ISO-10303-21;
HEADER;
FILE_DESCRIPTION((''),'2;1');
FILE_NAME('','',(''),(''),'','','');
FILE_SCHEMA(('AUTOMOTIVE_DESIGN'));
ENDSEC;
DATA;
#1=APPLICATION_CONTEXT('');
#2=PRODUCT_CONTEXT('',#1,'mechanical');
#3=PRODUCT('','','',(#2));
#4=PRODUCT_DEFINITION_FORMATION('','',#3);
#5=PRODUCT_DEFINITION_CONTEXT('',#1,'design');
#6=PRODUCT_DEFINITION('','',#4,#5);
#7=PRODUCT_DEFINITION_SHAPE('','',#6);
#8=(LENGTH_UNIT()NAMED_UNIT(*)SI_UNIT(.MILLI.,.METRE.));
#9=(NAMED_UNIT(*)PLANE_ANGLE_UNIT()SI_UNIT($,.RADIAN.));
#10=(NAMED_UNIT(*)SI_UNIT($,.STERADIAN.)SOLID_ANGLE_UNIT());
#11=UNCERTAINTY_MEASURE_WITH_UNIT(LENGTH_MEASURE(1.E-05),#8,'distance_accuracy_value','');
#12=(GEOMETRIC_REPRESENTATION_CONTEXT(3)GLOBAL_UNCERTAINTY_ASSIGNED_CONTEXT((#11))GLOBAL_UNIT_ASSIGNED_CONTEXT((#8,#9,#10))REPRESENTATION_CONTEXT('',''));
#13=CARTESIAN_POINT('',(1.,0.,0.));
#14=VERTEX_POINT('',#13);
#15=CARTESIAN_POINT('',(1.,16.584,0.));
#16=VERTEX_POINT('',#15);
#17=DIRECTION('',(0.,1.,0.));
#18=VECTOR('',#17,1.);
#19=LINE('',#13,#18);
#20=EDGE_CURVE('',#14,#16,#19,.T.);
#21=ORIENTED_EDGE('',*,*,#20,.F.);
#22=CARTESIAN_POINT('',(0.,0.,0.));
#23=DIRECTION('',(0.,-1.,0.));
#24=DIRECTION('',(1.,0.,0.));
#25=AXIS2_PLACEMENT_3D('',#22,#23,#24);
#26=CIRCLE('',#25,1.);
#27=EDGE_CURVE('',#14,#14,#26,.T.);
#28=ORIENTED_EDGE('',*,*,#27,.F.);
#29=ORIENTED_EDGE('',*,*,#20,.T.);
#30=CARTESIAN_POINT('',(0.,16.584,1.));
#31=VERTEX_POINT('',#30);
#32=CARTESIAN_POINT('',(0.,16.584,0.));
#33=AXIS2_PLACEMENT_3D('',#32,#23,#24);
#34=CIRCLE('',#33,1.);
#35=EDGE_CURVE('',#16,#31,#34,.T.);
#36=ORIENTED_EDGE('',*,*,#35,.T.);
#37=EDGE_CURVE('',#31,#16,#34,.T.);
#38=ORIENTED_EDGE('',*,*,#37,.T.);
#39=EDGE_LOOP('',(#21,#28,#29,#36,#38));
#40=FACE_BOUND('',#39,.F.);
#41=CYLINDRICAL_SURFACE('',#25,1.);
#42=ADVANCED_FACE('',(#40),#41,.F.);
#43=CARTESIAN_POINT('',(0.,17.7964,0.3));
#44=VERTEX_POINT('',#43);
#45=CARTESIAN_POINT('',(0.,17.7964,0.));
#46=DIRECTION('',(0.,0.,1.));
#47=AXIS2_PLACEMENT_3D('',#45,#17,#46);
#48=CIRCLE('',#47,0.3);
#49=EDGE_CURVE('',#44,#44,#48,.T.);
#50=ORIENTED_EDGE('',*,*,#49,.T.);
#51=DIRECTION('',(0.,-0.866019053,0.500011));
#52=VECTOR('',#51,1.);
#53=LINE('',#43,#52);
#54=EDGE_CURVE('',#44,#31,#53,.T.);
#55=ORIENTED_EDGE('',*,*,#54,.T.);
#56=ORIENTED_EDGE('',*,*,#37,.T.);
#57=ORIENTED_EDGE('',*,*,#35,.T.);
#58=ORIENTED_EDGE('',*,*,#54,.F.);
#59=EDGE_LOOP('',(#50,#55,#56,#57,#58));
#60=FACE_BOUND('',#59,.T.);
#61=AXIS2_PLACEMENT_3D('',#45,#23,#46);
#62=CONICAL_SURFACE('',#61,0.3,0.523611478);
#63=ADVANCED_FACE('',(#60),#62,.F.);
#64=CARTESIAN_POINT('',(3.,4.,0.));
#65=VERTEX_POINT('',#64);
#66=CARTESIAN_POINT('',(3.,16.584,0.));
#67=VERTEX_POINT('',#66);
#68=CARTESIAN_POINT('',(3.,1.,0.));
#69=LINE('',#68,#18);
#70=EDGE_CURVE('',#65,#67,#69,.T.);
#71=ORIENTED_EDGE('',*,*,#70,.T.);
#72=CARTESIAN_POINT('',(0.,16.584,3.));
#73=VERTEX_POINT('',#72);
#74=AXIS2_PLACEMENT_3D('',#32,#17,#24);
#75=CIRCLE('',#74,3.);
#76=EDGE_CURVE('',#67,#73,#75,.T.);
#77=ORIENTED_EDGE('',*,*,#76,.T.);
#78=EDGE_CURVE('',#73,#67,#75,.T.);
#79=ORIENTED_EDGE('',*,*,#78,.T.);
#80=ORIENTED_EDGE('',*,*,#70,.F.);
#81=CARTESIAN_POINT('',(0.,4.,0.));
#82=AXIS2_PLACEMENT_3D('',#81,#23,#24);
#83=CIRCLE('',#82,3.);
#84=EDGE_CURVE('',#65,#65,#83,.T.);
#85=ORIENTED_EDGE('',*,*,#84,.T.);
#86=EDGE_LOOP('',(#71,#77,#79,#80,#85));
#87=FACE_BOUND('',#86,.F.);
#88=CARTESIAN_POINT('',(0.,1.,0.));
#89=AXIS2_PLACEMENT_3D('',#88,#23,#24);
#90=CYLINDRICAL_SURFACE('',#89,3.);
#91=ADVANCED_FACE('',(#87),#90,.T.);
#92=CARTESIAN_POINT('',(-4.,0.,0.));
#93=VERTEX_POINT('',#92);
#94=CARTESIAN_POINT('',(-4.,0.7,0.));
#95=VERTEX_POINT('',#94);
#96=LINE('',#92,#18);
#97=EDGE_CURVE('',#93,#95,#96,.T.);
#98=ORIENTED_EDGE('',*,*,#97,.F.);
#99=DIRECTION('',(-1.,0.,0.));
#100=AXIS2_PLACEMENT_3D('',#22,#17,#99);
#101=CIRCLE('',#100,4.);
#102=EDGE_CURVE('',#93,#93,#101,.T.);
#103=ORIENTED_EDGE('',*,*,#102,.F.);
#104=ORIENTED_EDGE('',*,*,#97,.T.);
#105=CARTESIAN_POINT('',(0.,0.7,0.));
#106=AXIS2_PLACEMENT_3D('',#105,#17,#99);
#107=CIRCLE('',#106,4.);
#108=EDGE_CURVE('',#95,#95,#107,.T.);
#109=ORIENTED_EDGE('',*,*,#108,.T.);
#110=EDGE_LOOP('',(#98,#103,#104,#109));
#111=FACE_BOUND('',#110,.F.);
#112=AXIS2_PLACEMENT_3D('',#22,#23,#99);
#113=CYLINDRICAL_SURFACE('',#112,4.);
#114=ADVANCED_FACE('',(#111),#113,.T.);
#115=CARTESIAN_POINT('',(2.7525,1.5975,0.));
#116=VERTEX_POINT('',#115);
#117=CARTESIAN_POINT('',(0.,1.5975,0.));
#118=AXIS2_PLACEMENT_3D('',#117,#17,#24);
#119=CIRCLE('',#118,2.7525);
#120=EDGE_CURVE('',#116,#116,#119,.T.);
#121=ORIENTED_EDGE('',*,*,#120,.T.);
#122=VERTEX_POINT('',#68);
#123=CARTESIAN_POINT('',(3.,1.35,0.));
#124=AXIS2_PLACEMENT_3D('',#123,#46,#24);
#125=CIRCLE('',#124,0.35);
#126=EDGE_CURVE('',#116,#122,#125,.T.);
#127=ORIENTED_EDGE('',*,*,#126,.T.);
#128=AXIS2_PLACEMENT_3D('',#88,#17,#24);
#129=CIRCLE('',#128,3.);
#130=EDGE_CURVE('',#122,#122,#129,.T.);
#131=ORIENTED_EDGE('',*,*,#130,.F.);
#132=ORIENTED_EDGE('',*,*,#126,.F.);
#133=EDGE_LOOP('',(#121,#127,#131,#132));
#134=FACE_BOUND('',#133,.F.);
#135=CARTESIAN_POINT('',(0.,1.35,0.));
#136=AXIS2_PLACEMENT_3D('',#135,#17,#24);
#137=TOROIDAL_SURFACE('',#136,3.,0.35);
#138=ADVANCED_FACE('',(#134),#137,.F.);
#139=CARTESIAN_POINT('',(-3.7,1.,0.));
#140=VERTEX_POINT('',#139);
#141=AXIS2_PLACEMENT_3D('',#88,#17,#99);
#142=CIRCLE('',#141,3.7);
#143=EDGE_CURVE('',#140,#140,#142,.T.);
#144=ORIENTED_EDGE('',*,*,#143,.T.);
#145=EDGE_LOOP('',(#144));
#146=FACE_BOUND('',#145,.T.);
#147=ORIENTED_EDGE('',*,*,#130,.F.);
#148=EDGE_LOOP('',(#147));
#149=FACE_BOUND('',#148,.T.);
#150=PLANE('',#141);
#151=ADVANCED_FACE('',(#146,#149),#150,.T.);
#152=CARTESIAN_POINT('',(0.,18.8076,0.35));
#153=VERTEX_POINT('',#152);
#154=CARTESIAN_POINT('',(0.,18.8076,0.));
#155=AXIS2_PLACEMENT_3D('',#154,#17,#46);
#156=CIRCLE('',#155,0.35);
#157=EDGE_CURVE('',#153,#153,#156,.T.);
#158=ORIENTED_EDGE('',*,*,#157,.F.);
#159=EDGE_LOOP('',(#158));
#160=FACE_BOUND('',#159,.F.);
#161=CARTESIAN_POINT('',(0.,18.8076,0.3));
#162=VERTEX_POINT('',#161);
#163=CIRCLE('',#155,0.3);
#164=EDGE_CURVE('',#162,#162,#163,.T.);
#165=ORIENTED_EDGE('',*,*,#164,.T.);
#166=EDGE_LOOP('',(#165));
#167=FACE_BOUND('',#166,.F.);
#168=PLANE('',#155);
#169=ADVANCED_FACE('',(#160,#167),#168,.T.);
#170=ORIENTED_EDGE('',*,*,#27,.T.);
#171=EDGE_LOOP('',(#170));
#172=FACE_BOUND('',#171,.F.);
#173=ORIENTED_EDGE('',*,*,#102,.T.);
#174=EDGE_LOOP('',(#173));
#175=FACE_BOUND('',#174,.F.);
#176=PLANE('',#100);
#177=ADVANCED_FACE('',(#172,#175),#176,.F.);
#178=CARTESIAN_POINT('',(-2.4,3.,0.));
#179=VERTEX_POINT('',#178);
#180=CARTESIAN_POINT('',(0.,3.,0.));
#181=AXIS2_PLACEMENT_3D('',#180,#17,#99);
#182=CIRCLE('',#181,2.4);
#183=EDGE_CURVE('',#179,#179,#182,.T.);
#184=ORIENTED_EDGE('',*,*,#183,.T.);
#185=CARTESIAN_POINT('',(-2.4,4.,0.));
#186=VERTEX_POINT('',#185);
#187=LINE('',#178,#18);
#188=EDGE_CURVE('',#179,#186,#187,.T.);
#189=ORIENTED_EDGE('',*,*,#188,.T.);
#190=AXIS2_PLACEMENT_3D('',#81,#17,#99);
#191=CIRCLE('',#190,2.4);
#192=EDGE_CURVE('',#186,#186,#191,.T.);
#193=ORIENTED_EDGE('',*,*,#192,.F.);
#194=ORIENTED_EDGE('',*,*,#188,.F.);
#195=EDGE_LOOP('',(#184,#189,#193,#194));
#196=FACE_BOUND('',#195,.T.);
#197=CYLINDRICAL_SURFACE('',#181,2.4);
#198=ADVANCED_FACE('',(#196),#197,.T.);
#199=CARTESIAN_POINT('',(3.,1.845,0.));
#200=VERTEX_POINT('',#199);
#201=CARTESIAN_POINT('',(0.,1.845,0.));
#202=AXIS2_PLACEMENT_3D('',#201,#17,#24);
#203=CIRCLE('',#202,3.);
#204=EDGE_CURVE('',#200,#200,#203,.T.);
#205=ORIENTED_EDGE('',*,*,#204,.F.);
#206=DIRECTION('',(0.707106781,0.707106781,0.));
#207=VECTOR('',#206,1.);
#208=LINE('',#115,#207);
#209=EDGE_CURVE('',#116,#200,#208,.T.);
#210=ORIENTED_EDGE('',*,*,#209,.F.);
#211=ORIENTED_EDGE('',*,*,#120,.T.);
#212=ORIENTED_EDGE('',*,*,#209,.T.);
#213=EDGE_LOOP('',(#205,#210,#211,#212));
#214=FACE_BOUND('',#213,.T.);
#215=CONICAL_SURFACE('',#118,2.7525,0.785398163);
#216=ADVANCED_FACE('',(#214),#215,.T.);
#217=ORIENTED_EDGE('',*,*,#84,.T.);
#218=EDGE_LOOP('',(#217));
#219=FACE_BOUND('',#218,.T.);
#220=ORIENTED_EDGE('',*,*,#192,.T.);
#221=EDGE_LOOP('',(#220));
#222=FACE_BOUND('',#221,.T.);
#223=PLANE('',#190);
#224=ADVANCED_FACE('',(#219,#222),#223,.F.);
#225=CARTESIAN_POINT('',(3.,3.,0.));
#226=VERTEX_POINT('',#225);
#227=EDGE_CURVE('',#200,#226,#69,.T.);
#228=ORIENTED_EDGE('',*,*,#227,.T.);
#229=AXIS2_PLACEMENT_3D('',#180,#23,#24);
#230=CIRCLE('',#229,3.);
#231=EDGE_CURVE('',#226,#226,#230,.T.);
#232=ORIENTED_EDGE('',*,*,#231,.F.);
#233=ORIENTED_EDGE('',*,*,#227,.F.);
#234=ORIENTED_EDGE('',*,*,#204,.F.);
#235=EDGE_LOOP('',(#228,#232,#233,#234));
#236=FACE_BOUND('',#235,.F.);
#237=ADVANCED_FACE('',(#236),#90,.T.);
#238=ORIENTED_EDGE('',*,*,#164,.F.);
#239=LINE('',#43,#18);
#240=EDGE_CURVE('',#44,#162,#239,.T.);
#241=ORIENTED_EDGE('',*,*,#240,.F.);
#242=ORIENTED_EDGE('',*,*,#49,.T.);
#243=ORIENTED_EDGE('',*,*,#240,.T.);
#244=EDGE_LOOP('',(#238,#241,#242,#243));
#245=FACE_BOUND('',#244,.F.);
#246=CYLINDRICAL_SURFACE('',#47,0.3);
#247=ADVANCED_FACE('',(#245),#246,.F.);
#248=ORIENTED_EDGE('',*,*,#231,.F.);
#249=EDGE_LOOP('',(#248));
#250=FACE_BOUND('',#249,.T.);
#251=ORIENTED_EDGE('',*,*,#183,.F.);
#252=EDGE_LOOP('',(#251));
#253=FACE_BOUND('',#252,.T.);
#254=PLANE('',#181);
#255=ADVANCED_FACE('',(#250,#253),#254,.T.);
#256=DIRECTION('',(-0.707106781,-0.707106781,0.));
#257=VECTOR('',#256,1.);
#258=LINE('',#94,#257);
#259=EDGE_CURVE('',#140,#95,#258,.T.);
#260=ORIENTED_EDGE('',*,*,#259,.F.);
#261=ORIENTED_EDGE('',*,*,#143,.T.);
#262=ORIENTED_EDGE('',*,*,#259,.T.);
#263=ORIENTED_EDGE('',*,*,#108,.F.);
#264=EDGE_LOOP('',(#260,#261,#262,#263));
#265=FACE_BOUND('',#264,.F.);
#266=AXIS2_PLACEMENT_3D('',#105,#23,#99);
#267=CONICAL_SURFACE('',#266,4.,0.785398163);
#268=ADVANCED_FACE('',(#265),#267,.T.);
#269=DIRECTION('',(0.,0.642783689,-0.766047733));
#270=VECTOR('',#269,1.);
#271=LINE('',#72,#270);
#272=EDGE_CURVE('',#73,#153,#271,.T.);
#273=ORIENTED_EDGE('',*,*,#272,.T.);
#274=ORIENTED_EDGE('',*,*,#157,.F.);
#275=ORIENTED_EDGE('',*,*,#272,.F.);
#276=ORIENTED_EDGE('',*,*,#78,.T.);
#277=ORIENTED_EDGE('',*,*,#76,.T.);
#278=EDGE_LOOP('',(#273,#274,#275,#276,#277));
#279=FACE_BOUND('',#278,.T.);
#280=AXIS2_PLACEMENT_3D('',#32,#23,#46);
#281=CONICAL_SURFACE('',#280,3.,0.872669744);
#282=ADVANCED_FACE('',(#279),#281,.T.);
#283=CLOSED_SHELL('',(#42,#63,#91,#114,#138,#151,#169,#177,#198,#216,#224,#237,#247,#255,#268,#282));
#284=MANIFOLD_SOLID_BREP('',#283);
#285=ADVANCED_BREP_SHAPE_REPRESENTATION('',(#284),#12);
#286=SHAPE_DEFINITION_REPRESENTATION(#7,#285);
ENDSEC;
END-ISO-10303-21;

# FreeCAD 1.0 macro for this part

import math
import FreeCAD as App
import Part
import Sketcher

V = App.Vector
Q = App.Units.Quantity


def edges_at(feature, points):
    """Names of the edges that pass closest to the given points."""
    edges = feature.Shape.Edges
    near = lambda p: min(range(len(edges)), key=lambda i: edges[i].distToShape(Part.Vertex(*p))[0])
    return sorted({f"Edge{near(p) + 1}" for p in points})

doc = App.newDocument("Part")
params = doc.addObject("Spreadsheet::Sheet", "Params")
for row, (alias, value) in enumerate([
    ("sketch1_diameter", "8 mm"),
    ("pad1_length", "1 mm"),
    ("sketch2_diameter", "6 mm"),
    ("pad2_length", "15.584 mm"),
    ("sketch3_diameter", "2 mm"),
    ("pocket1_length", "21 mm"),
    ("sketch4_height", "0.05 mm"),
    ("sketch4_height2", "2 mm"),
    ("revolution_angle", "360 deg"),
    ("sketch5_radius", "0.35 mm"),
    ("groove_angle", "360 deg"),
    ("chamfer_size", "0.3 mm"),
    ("sketch6_height", "1 mm"),
    ("sketch6_width", "0.6 mm"),
    ("groove2_angle", "360 deg"),
], start=1):
    params.set(f"A{row}", alias)
    params.set(f"B{row}", "=" + value)
    params.setAlias(f"B{row}", alias)

body = doc.addObject("PartDesign::Body", "Body")

# Sketch on XZ plane
sketch1 = body.newObject("Sketcher::SketchObject", "Sketch")
sketch1.AttachmentSupport = (doc.getObject("XZ_Plane"), [""])
sketch1.MapMode = "FlatFace"
sketch1.addGeometry(Part.Circle(V(0, 0, 0), V(0, 0, 1), 4), False)
sketch1.addConstraint([
    Sketcher.Constraint("Coincident", 0, 3, -1, 1),
    Sketcher.Constraint("Diameter", 0, Q("8 mm")),
])
sketch1.setExpression("Constraints[1]", "Params.sketch1_diameter")
pad1 = body.newObject("PartDesign::Pad", "Pad")
pad1.Profile = sketch1
pad1.setExpression("Length", "Params.pad1_length")
pad1.Reversed = True

# Sketch on XZ plane
sketch2 = body.newObject("Sketcher::SketchObject", "Sketch001")
sketch2.AttachmentSupport = (doc.getObject("XZ_Plane"), [""])
sketch2.MapMode = "FlatFace"
sketch2.AttachmentOffset = App.Placement(V(0, 0, -1), App.Rotation())
sketch2.addGeometry(Part.Circle(V(0, 0, 0), V(0, 0, 1), 3), False)
sketch2.addConstraint([
    Sketcher.Constraint("Coincident", 0, 3, -1, 1),
    Sketcher.Constraint("Diameter", 0, Q("6 mm")),
])
sketch2.setExpression("Constraints[1]", "Params.sketch2_diameter")
pad2 = body.newObject("PartDesign::Pad", "Pad001")
pad2.Profile = sketch2
pad2.setExpression("Length", "Params.pad2_length")
pad2.Reversed = True

# Sketch on XZ plane
sketch3 = body.newObject("Sketcher::SketchObject", "Sketch002")
sketch3.AttachmentSupport = (doc.getObject("XZ_Plane"), [""])
sketch3.MapMode = "FlatFace"
sketch3.addGeometry(Part.Circle(V(0, 0, 0), V(0, 0, 1), 1), False)
sketch3.addConstraint([
    Sketcher.Constraint("Coincident", 0, 3, -1, 1),
    Sketcher.Constraint("Diameter", 0, Q("2 mm")),
])
sketch3.setExpression("Constraints[1]", "Params.sketch3_diameter")
pocket1 = body.newObject("PartDesign::Pocket", "Pocket")
pocket1.Profile = sketch3
pocket1.setExpression("Length", "Params.pocket1_length")

# Sketch on YZ plane
sketch4 = body.newObject("Sketcher::SketchObject", "Sketch003")
sketch4.AttachmentSupport = (doc.getObject("YZ_Plane"), [""])
sketch4.MapMode = "FlatFace"
sketch4.addGeometry([
    Part.LineSegment(V(18.81, 0.35, 0), V(16.58, 3, 0)),  # 0
    Part.LineSegment(V(16.58, 3, 0), V(16.58, 1, 0)),  # 1
    Part.LineSegment(V(16.58, 1, 0), V(17.8, 0.3, 0)),  # 2
    Part.LineSegment(V(17.8, 0.3, 0), V(18.81, 0.3, 0)),  # 3
    Part.LineSegment(V(18.81, 0.3, 0), V(18.81, 0.35, 0)),  # 4
], False)
sketch4.addConstraint([
    Sketcher.Constraint("Coincident", 0, 2, 1, 1),
    Sketcher.Constraint("Coincident", 1, 2, 2, 1),
    Sketcher.Constraint("Coincident", 2, 2, 3, 1),
    Sketcher.Constraint("Coincident", 3, 2, 4, 1),
    Sketcher.Constraint("Coincident", 4, 2, 0, 1),
    Sketcher.Constraint("Vertical", 1),
    Sketcher.Constraint("Horizontal", 3),
    Sketcher.Constraint("Vertical", 4),
    Sketcher.Constraint("DistanceY", 4, 1, 4, 2, Q("0.05 mm")),
    Sketcher.Constraint("DistanceY", -1, 1, 2, 2, Q("0.3 mm")),
    Sketcher.Constraint("DistanceY", 1, 2, 1, 1, Q("2 mm")),
    Sketcher.Constraint("Angle", 0, Q("129.9997 deg")),
    Sketcher.Constraint("Angle", 2, Q("-30.0007 deg")),
    Sketcher.Constraint("DistanceY", -1, 1, 0, 2, Q("3 mm")),
    Sketcher.Constraint("DistanceX", -1, 1, 0, 2, Q("16.584 mm")),
])
sketch4.setExpression("Constraints[8]", "Params.sketch4_height")
sketch4.setExpression("Constraints[10]", "Params.sketch4_height2")
revolution = body.newObject("PartDesign::Revolution", "Revolution")
revolution.Profile = sketch4
revolution.ReferenceAxis = (sketch4, ["H_Axis"])
revolution.setExpression("Angle", "Params.revolution_angle")

# Sketch on XY plane
sketch5 = body.newObject("Sketcher::SketchObject", "Sketch004")
sketch5.AttachmentSupport = (doc.getObject("XY_Plane"), [""])
sketch5.MapMode = "FlatFace"
sketch5.addGeometry([
    Part.LineSegment(V(3.35, 1.35, 0), V(3.37, 2.22, 0)),
    Part.LineSegment(V(3.37, 2.22, 0), V(2.75, 1.6, 0)),
    Part.ArcOfCircle(Part.Circle(V(3, 1.35, 0), V(0, 0, 1), 0.35), math.radians(135), math.radians(360)),
], False)
sketch5.addConstraint([
    Sketcher.Constraint("Coincident", 0, 2, 1, 1),
    Sketcher.Constraint("Tangent", 1, 2, 2, 1),
    Sketcher.Constraint("Coincident", 2, 2, 0, 1),
    Sketcher.Constraint("Radius", 2, Q("0.35 mm")),
    Sketcher.Constraint("Angle", 1, Q("-135 deg")),
    Sketcher.Constraint("DistanceX", -1, 1, 2, 3, Q("3 mm")),
    Sketcher.Constraint("DistanceY", -1, 1, 2, 3, Q("1.35 mm")),
    Sketcher.Constraint("DistanceY", -1, 1, 2, 2, Q("1.35 mm")),
    Sketcher.Constraint("Distance", 1, Q("0.878 mm")),
])
sketch5.setExpression("Constraints[3]", "Params.sketch5_radius")
groove = body.newObject("PartDesign::Groove", "Groove")
groove.Profile = sketch5
groove.ReferenceAxis = (sketch5, ["V_Axis"])
groove.setExpression("Angle", "Params.groove_angle")
doc.recompute()

chamfer = body.newObject("PartDesign::Chamfer", "Chamfer")
chamfer.Base = (groove, edges_at(groove, [(4, 1, 0)]))
chamfer.setExpression("Size", "Params.chamfer_size")

# Sketch on XY plane
sketch6 = body.newObject("Sketcher::SketchObject", "Sketch005")
sketch6.AttachmentSupport = (doc.getObject("XY_Plane"), [""])
sketch6.MapMode = "FlatFace"
sketch6.addGeometry([
    Part.LineSegment(V(-3, 4, 0), V(-3, 3, 0)),
    Part.LineSegment(V(-3, 3, 0), V(-2.4, 3, 0)),
    Part.LineSegment(V(-2.4, 3, 0), V(-2.4, 4, 0)),
    Part.LineSegment(V(-2.4, 4, 0), V(-3, 4, 0)),
], False)
sketch6.addConstraint([
    Sketcher.Constraint("Coincident", 0, 2, 1, 1),
    Sketcher.Constraint("Coincident", 1, 2, 2, 1),
    Sketcher.Constraint("Coincident", 2, 2, 3, 1),
    Sketcher.Constraint("Coincident", 3, 2, 0, 1),
    Sketcher.Constraint("Vertical", 0),
    Sketcher.Constraint("Horizontal", 1),
    Sketcher.Constraint("Vertical", 2),
    Sketcher.Constraint("Horizontal", 3),
    Sketcher.Constraint("DistanceY", 0, 2, 0, 1, Q("1 mm")),
    Sketcher.Constraint("DistanceX", 1, 1, 1, 2, Q("0.6 mm")),
    Sketcher.Constraint("DistanceX", 0, 2, -1, 1, Q("3 mm")),
    Sketcher.Constraint("DistanceY", -1, 1, 0, 2, Q("3 mm")),
])
sketch6.setExpression("Constraints[8]", "Params.sketch6_height")
sketch6.setExpression("Constraints[9]", "Params.sketch6_width")
groove2 = body.newObject("PartDesign::Groove", "Groove001")
groove2.Profile = sketch6
groove2.ReferenceAxis = (sketch6, ["V_Axis"])
groove2.setExpression("Angle", "Params.groove2_angle")

doc.recompute()
